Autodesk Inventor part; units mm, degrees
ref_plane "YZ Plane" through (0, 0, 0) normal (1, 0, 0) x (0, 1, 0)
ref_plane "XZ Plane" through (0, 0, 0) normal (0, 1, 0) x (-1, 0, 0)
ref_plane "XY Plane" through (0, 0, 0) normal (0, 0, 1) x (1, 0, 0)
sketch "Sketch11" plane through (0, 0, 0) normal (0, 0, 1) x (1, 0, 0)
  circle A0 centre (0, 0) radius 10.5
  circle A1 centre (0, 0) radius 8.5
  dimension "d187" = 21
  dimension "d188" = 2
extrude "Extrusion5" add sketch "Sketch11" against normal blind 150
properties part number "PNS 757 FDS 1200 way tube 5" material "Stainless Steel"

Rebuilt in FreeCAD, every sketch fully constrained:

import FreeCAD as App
import Part
import Sketcher

V = App.Vector
Q = App.Units.Quantity

doc = App.newDocument("Part")
params = doc.addObject("Spreadsheet::Sheet", "Params")
for row, (alias, value) in enumerate([
    ("sketch1_diameter", "21 mm"),
    ("sketch1_diameter2", "17 mm"),
    ("pad1_length", "150 mm"),
], start=1):
    params.set(f"A{row}", alias)
    params.set(f"B{row}", "=" + value)
    params.setAlias(f"B{row}", alias)

body = doc.addObject("PartDesign::Body", "Body")

# Sketch on XY plane
sketch1 = doc.addObject("Sketcher::SketchObject", "Sketch")
body.addObject(sketch1)
sketch1.AttachmentSupport = (doc.XY_Plane, [""])
sketch1.MapMode = "FlatFace"
sketch1.addGeometry(Part.Circle(V(0, 0, 0), V(0, 0, 1), 10), False)
sketch1.addGeometry(Part.Circle(V(0, 0, 0), V(0, 0, 1), 8), False)
sketch1.addConstraint(Sketcher.Constraint("Coincident", 0, 3, -1, 1))
sketch1.addConstraint(Sketcher.Constraint("Coincident", 1, 3, -1, 1))
sketch1.addConstraint(Sketcher.Constraint("Diameter", 0, Q("21 mm")))
sketch1.addConstraint(Sketcher.Constraint("Diameter", 1, Q("17 mm")))
sketch1.setExpression("Constraints[2]", "Params.sketch1_diameter")
sketch1.setExpression("Constraints[3]", "Params.sketch1_diameter2")
pad1 = doc.addObject("PartDesign::Pad", "Pad")
body.addObject(pad1)
pad1.Profile = sketch1
pad1.setExpression("Length", "Params.pad1_length")
pad1.Reversed = True

doc.recompute()
